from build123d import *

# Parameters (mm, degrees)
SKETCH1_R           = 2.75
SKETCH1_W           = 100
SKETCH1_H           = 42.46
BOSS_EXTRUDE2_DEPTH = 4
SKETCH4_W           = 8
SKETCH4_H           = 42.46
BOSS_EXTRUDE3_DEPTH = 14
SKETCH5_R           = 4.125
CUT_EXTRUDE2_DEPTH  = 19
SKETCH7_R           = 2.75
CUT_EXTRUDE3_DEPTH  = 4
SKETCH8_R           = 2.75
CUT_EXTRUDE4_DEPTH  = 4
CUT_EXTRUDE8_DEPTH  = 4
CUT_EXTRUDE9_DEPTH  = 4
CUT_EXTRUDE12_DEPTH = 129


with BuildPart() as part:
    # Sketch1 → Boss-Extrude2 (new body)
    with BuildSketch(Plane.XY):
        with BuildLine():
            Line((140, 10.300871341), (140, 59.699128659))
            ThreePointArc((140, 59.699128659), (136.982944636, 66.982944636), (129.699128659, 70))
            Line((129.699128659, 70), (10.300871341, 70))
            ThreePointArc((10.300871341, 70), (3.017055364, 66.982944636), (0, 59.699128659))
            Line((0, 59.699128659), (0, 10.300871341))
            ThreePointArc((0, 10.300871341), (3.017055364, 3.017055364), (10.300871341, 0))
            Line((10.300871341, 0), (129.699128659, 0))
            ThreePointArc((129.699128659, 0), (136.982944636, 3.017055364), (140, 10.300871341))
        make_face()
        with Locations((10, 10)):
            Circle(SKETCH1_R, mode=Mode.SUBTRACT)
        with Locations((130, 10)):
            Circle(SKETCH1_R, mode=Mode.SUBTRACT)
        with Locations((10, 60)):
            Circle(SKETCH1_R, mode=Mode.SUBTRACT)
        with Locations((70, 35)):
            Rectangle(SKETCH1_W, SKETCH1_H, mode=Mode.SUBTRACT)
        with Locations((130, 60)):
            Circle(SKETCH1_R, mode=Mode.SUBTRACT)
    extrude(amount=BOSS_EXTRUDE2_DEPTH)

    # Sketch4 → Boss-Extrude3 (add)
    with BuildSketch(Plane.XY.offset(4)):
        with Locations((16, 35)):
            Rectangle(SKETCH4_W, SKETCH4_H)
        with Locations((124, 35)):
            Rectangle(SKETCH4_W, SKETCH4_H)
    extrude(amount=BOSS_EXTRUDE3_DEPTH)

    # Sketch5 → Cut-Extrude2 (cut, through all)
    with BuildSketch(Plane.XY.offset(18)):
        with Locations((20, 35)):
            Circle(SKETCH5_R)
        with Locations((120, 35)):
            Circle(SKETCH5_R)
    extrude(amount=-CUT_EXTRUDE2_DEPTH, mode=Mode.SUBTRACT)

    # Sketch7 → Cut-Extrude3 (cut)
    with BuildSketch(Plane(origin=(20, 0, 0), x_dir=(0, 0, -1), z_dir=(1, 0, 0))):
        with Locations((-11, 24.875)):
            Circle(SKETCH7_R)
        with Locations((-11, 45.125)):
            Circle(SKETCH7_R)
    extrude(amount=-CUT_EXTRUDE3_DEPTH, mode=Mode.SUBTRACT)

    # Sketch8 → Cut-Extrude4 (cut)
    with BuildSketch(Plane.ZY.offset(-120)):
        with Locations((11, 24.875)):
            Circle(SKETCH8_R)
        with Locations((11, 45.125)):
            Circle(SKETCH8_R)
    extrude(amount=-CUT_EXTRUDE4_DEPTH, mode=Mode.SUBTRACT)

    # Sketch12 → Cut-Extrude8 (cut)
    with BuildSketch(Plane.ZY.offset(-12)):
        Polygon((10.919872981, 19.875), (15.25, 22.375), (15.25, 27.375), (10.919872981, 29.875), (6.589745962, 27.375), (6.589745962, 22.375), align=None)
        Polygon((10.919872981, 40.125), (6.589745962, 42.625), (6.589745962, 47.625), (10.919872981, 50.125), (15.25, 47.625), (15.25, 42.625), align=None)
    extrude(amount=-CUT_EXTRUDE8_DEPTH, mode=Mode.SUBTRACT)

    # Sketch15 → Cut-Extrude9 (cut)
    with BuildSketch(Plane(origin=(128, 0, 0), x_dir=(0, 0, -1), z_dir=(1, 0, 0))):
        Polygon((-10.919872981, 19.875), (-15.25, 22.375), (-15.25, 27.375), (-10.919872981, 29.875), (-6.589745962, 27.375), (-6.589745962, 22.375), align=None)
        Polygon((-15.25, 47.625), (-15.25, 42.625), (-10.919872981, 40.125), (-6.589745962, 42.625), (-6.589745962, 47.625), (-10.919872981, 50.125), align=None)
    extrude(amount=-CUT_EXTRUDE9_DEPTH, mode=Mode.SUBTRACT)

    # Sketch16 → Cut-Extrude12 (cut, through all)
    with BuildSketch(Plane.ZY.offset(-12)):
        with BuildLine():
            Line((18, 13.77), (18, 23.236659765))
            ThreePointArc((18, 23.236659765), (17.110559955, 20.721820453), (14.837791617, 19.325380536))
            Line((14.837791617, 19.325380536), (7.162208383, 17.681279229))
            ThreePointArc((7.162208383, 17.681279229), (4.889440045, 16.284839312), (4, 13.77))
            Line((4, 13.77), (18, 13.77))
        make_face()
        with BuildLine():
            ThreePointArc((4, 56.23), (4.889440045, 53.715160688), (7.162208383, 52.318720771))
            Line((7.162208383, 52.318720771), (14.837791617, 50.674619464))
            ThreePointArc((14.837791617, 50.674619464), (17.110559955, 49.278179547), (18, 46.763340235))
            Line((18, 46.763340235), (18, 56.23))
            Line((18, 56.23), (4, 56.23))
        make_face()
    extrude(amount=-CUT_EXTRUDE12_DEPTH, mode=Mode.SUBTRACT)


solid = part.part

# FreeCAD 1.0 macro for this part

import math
import FreeCAD as App
import Part
import Sketcher
Q = App.Units.Quantity

doc = App.newDocument("Part")
body = doc.addObject("PartDesign::Body", "Body")

# Sketch on XY plane
sketch1 = body.newObject("Sketcher::SketchObject", "Sketch")
sketch1.AttachmentSupport = (doc.getObject("XY_Plane"), [""])
sketch1.MapMode = "FlatFace"
sketch1.addGeometry([
    Part.LineSegment(App.Vector(140, 10.3, 0), App.Vector(140, 59.7, 0)),  # 0
    Part.ArcOfCircle(Part.Circle(App.Vector(129.7, 59.7, 0), App.Vector(0, 0, 1), 10.3), math.radians(0), math.radians(90)),  # 1
    Part.LineSegment(App.Vector(129.7, 70, 0), App.Vector(10.3, 70, 0)),  # 2
    Part.ArcOfCircle(Part.Circle(App.Vector(10.3, 59.7, 0), App.Vector(0, 0, 1), 10.3), math.radians(90), math.radians(180)),  # 3
    Part.LineSegment(App.Vector(0, 59.7, 0), App.Vector(0, 10.3, 0)),  # 4
    Part.ArcOfCircle(Part.Circle(App.Vector(10.3, 10.3, 0), App.Vector(0, 0, 1), 10.3), math.radians(-180), math.radians(-90)),  # 5
    Part.LineSegment(App.Vector(10.3, 0, 0), App.Vector(129.7, 0, 0)),  # 6
    Part.ArcOfCircle(Part.Circle(App.Vector(129.7, 10.3, 0), App.Vector(0, 0, 1), 10.3), math.radians(-90), math.radians(0)),  # 7
    Part.Circle(App.Vector(10, 10, 0), App.Vector(0, 0, 1), 2.8),  # 8
    Part.Circle(App.Vector(130, 10, 0), App.Vector(0, 0, 1), 2.8),  # 9
    Part.Circle(App.Vector(10, 60, 0), App.Vector(0, 0, 1), 2.8),  # 10
    Part.LineSegment(App.Vector(120, 13.8, 0), App.Vector(20, 13.8, 0)),  # 11
    Part.LineSegment(App.Vector(20, 13.8, 0), App.Vector(20, 56.2, 0)),  # 12
    Part.LineSegment(App.Vector(20, 56.2, 0), App.Vector(120, 56.2, 0)),  # 13
    Part.LineSegment(App.Vector(120, 56.2, 0), App.Vector(120, 13.8, 0)),  # 14
    Part.Circle(App.Vector(130, 60, 0), App.Vector(0, 0, 1), 2.8),  # 15
], False)
sketch1.addConstraint([
    Sketcher.Constraint("Tangent", 0, 2, 1, 1),
    Sketcher.Constraint("Tangent", 1, 2, 2, 1),
    Sketcher.Constraint("Tangent", 2, 2, 3, 1),
    Sketcher.Constraint("Tangent", 3, 2, 4, 1),
    Sketcher.Constraint("Tangent", 4, 2, 5, 1),
    Sketcher.Constraint("Tangent", 5, 2, 6, 1),
    Sketcher.Constraint("Tangent", 6, 2, 7, 1),
    Sketcher.Constraint("Tangent", 7, 2, 0, 1),
    Sketcher.Constraint("Coincident", 11, 2, 12, 1),
    Sketcher.Constraint("Coincident", 12, 2, 13, 1),
    Sketcher.Constraint("Coincident", 13, 2, 14, 1),
    Sketcher.Constraint("Coincident", 14, 2, 11, 1),
    Sketcher.Constraint("Vertical", 0),
    Sketcher.Constraint("Horizontal", 2),
    Sketcher.Constraint("Vertical", 4),
    Sketcher.Constraint("Horizontal", 6),
    Sketcher.Constraint("Horizontal", 11),
    Sketcher.Constraint("Vertical", 12),
    Sketcher.Constraint("Horizontal", 13),
    Sketcher.Constraint("Vertical", 14),
    Sketcher.Constraint("Equal", 1, 3),
    Sketcher.Constraint("Equal", 3, 5),
    Sketcher.Constraint("Equal", 5, 7),
    Sketcher.Constraint("Equal", 8, 9),
    Sketcher.Constraint("Equal", 9, 10),
    Sketcher.Constraint("Equal", 10, 15),
    Sketcher.Constraint("PointOnObject", 3, 2, -2),
    Sketcher.Constraint("PointOnObject", 5, 2, -1),
    Sketcher.Constraint("Horizontal", 8, 3, 9, 3),
    Sketcher.Constraint("Horizontal", 10, 3, 15, 3),
    Sketcher.Constraint("Vertical", 8, 3, 10, 3),
    Sketcher.Constraint("Vertical", 9, 3, 15, 3),
    Sketcher.Constraint("Diameter", 8, 5.5),
    Sketcher.Constraint("DistanceX", 11, 2, 11, 1, 100.0),
    Sketcher.Constraint("DistanceX", -1, 1, 8, 3, 10.0),
    Sketcher.Constraint("DistanceY", -1, 1, 8, 3, 10.0),
    Sketcher.Constraint("DistanceX", -1, 1, 9, 3, 130.0),
    Sketcher.Constraint("DistanceY", -1, 1, 10, 3, 60.0),
    Sketcher.Constraint("DistanceX", -1, 1, 0, 2, 140.0),
    Sketcher.Constraint("DistanceY", -1, 1, 1, 2, 70.0),
    Sketcher.Constraint("DistanceX", -1, 1, 11, 2, 20.0),
    Sketcher.Constraint("DistanceY", 12, 1, 12, 2, 42.46),
    Sketcher.Constraint("DistanceY", -1, 1, 11, 2, 13.77),
    Sketcher.Constraint("Radius", 1, 10.300871),
])
pad1 = body.newObject("PartDesign::Pad", "Pad")
pad1.Profile = sketch1
pad1.Length = 4

# Sketch on XY plane
sketch2 = body.newObject("Sketcher::SketchObject", "Sketch001")
sketch2.AttachmentSupport = (doc.getObject("XY_Plane"), [""])
sketch2.MapMode = "FlatFace"
sketch2.AttachmentOffset = App.Placement(App.Vector(0, 0, 4), App.Rotation())
sketch2.addGeometry([
    Part.LineSegment(App.Vector(12, 56, 0), App.Vector(12, 14, 0)),  # 0
    Part.LineSegment(App.Vector(12, 14, 0), App.Vector(20, 14, 0)),  # 1
    Part.LineSegment(App.Vector(20, 14, 0), App.Vector(20, 56, 0)),  # 2
    Part.LineSegment(App.Vector(20, 56, 0), App.Vector(12, 56, 0)),  # 3
    Part.LineSegment(App.Vector(120, 56, 0), App.Vector(120, 14, 0)),  # 4
    Part.LineSegment(App.Vector(120, 14, 0), App.Vector(128, 14, 0)),  # 5
    Part.LineSegment(App.Vector(128, 14, 0), App.Vector(128, 56, 0)),  # 6
    Part.LineSegment(App.Vector(128, 56, 0), App.Vector(120, 56, 0)),  # 7
], False)
sketch2.addConstraint([
    Sketcher.Constraint("Coincident", 0, 2, 1, 1),
    Sketcher.Constraint("Coincident", 1, 2, 2, 1),
    Sketcher.Constraint("Coincident", 2, 2, 3, 1),
    Sketcher.Constraint("Coincident", 3, 2, 0, 1),
    Sketcher.Constraint("Coincident", 4, 2, 5, 1),
    Sketcher.Constraint("Coincident", 5, 2, 6, 1),
    Sketcher.Constraint("Coincident", 6, 2, 7, 1),
    Sketcher.Constraint("Coincident", 7, 2, 4, 1),
    Sketcher.Constraint("Vertical", 0),
    Sketcher.Constraint("Horizontal", 1),
    Sketcher.Constraint("Vertical", 2),
    Sketcher.Constraint("Horizontal", 3),
    Sketcher.Constraint("Vertical", 4),
    Sketcher.Constraint("Horizontal", 5),
    Sketcher.Constraint("Vertical", 6),
    Sketcher.Constraint("Horizontal", 7),
    Sketcher.Constraint("Horizontal", 1, 2, 4, 2),
    Sketcher.Constraint("Horizontal", 3, 2, 6, 2),
    Sketcher.Constraint("Equal", 3, 5),
    Sketcher.Constraint("DistanceX", 1, 1, 1, 2, 8.0),
    Sketcher.Constraint("DistanceX", -1, 1, 0, 2, 12.0),
    Sketcher.Constraint("DistanceX", -1, 1, 4, 2, 120.0),
    Sketcher.Constraint("DistanceY", 0, 2, 0, 1, 42.46),
    Sketcher.Constraint("DistanceY", -1, 1, 0, 2, 13.77),
])
pad2 = body.newObject("PartDesign::Pad", "Pad001")
pad2.Profile = sketch2
pad2.Length = 14

# Sketch on XY plane
sketch3 = body.newObject("Sketcher::SketchObject", "Sketch002")
sketch3.AttachmentSupport = (doc.getObject("XY_Plane"), [""])
sketch3.MapMode = "FlatFace"
sketch3.AttachmentOffset = App.Placement(App.Vector(0, 0, 18), App.Rotation())
sketch3.addGeometry([
    Part.Circle(App.Vector(20, 35, 0), App.Vector(0, 0, 1), 4.1),
    Part.Circle(App.Vector(120, 35, 0), App.Vector(0, 0, 1), 4.1),
], False)
sketch3.addConstraint([
    Sketcher.Constraint("Equal", 0, 1),
    Sketcher.Constraint("Horizontal", 0, 3, 1, 3),
    Sketcher.Constraint("Diameter", 0, 8.25),
    Sketcher.Constraint("DistanceX", -1, 1, 0, 3, 20.0),
    Sketcher.Constraint("DistanceY", -1, 1, 0, 3, 35.0),
    Sketcher.Constraint("DistanceX", -1, 1, 1, 3, 120.0),
])
pocket1 = body.newObject("PartDesign::Pocket", "Pocket")
pocket1.Profile = sketch3
pocket1.Type = "ThroughAll"

# Sketch on YZ plane
sketch4 = body.newObject("Sketcher::SketchObject", "Sketch003")
sketch4.AttachmentSupport = (doc.getObject("YZ_Plane"), [""])
sketch4.MapMode = "FlatFace"
sketch4.AttachmentOffset = App.Placement(App.Vector(0, 0, 20), App.Rotation())
sketch4.addGeometry([
    Part.Circle(App.Vector(24.9, 11, 0), App.Vector(0, 0, 1), 2.8),
    Part.Circle(App.Vector(45.1, 11, 0), App.Vector(0, 0, 1), 2.8),
], False)
sketch4.addConstraint([
    Sketcher.Constraint("Equal", 0, 1),
    Sketcher.Constraint("Horizontal", 0, 3, 1, 3),
    Sketcher.Constraint("Diameter", 0, 5.5),
    Sketcher.Constraint("DistanceY", -1, 1, 0, 3, 11.0),
    Sketcher.Constraint("DistanceX", 0, 3, 1, 3, 20.25),
    Sketcher.Constraint("DistanceX", -1, 1, 0, 3, 24.875),
])
pocket2 = body.newObject("PartDesign::Pocket", "Pocket001")
pocket2.Profile = sketch4
pocket2.Length = 4

# Sketch on YZ plane
sketch5 = body.newObject("Sketcher::SketchObject", "Sketch004")
sketch5.AttachmentSupport = (doc.getObject("YZ_Plane"), [""])
sketch5.MapMode = "FlatFace"
sketch5.AttachmentOffset = App.Placement(App.Vector(0, 0, 120), App.Rotation())
sketch5.addGeometry([
    Part.Circle(App.Vector(24.9, 11, 0), App.Vector(0, 0, 1), 2.8),
    Part.Circle(App.Vector(45.1, 11, 0), App.Vector(0, 0, 1), 2.8),
], False)
sketch5.addConstraint([
    Sketcher.Constraint("Equal", 0, 1),
    Sketcher.Constraint("Horizontal", 0, 3, 1, 3),
    Sketcher.Constraint("Diameter", 0, 5.5),
    Sketcher.Constraint("DistanceY", -1, 1, 0, 3, 11.0),
    Sketcher.Constraint("DistanceX", 0, 3, 1, 3, 20.25),
    Sketcher.Constraint("DistanceX", -1, 1, 0, 3, 24.875),
])
pocket3 = body.newObject("PartDesign::Pocket", "Pocket002")
pocket3.Profile = sketch5
pocket3.Length = 4
pocket3.Reversed = True

# Sketch on YZ plane
sketch6 = body.newObject("Sketcher::SketchObject", "Sketch005")
sketch6.AttachmentSupport = (doc.getObject("YZ_Plane"), [""])
sketch6.MapMode = "FlatFace"
sketch6.AttachmentOffset = App.Placement(App.Vector(0, 0, 12), App.Rotation())
sketch6.addGeometry([
    Part.LineSegment(App.Vector(20, 11, 0), App.Vector(22, 15, 0)),  # 0
    Part.LineSegment(App.Vector(22, 15, 0), App.Vector(27, 15, 0)),  # 1
    Part.LineSegment(App.Vector(27, 15, 0), App.Vector(30, 11, 0)),  # 2
    Part.LineSegment(App.Vector(30, 11, 0), App.Vector(27, 7, 0)),  # 3
    Part.LineSegment(App.Vector(27, 7, 0), App.Vector(22, 7, 0)),  # 4
    Part.LineSegment(App.Vector(22, 7, 0), App.Vector(20, 11, 0)),  # 5
    Part.LineSegment(App.Vector(43, 7, 0), App.Vector(40, 11, 0)),  # 6
    Part.LineSegment(App.Vector(40, 11, 0), App.Vector(43, 15, 0)),  # 7
    Part.LineSegment(App.Vector(43, 15, 0), App.Vector(48, 15, 0)),  # 8
    Part.LineSegment(App.Vector(48, 15, 0), App.Vector(50, 11, 0)),  # 9
    Part.LineSegment(App.Vector(50, 11, 0), App.Vector(48, 7, 0)),  # 10
    Part.LineSegment(App.Vector(48, 7, 0), App.Vector(43, 7, 0)),  # 11
], False)
sketch6.addConstraint([
    Sketcher.Constraint("Coincident", 0, 2, 1, 1),
    Sketcher.Constraint("Coincident", 1, 2, 2, 1),
    Sketcher.Constraint("Coincident", 2, 2, 3, 1),
    Sketcher.Constraint("Coincident", 3, 2, 4, 1),
    Sketcher.Constraint("Coincident", 4, 2, 5, 1),
    Sketcher.Constraint("Coincident", 5, 2, 0, 1),
    Sketcher.Constraint("Coincident", 6, 2, 7, 1),
    Sketcher.Constraint("Coincident", 7, 2, 8, 1),
    Sketcher.Constraint("Coincident", 8, 2, 9, 1),
    Sketcher.Constraint("Coincident", 9, 2, 10, 1),
    Sketcher.Constraint("Coincident", 10, 2, 11, 1),
    Sketcher.Constraint("Coincident", 11, 2, 6, 1),
    Sketcher.Constraint("Horizontal", 1),
    Sketcher.Constraint("Horizontal", 4),
    Sketcher.Constraint("Horizontal", 8),
    Sketcher.Constraint("Horizontal", 11),
    Sketcher.Constraint("Parallel", 0, 3),
    Sketcher.Constraint("Parallel", 2, 5),
    Sketcher.Constraint("Parallel", 5, 6),
    Sketcher.Constraint("Parallel", 3, 7),
    Sketcher.Constraint("Parallel", 6, 9),
    Sketcher.Constraint("Parallel", 7, 10),
    Sketcher.Constraint("Horizontal", 2, 2, 5, 2),
    Sketcher.Constraint("Horizontal", 5, 2, 6, 2),
    Sketcher.Constraint("Horizontal", 1, 2, 7, 2),
    Sketcher.Constraint("Horizontal", 6, 2, 9, 2),
    Sketcher.Constraint("Horizontal", 4, 2, 10, 2),
    Sketcher.Constraint("Vertical", 1, 2, 3, 2),
    Sketcher.Constraint("Vertical", 0, 2, 4, 2),
    Sketcher.Constraint("Equal", 4, 8),
    Sketcher.Constraint("DistanceX", 1, 1, 1, 2, 5.0),
    Sketcher.Constraint("Angle", 0, Q("60 deg")),
    Sketcher.Constraint("Distance", 0, 5.0),
    Sketcher.Constraint("DistanceY", -1, 1, 0, 2, 15.25),
    Sketcher.Constraint("DistanceX", 2, 2, 6, 2, 10.25),
    Sketcher.Constraint("DistanceX", -1, 1, 0, 2, 22.375),
])
pocket4 = body.newObject("PartDesign::Pocket", "Pocket003")
pocket4.Profile = sketch6
pocket4.Length = 4
pocket4.Reversed = True

# Sketch on YZ plane
sketch7 = body.newObject("Sketcher::SketchObject", "Sketch006")
sketch7.AttachmentSupport = (doc.getObject("YZ_Plane"), [""])
sketch7.MapMode = "FlatFace"
sketch7.AttachmentOffset = App.Placement(App.Vector(0, 0, 128), App.Rotation())
sketch7.addGeometry([
    Part.LineSegment(App.Vector(22, 15, 0), App.Vector(20, 11, 0)),  # 0
    Part.LineSegment(App.Vector(20, 11, 0), App.Vector(22, 7, 0)),  # 1
    Part.LineSegment(App.Vector(22, 7, 0), App.Vector(27, 7, 0)),  # 2
    Part.LineSegment(App.Vector(27, 7, 0), App.Vector(30, 11, 0)),  # 3
    Part.LineSegment(App.Vector(30, 11, 0), App.Vector(27, 15, 0)),  # 4
    Part.LineSegment(App.Vector(27, 15, 0), App.Vector(22, 15, 0)),  # 5
    Part.LineSegment(App.Vector(48, 15, 0), App.Vector(43, 15, 0)),  # 6
    Part.LineSegment(App.Vector(43, 15, 0), App.Vector(40, 11, 0)),  # 7
    Part.LineSegment(App.Vector(40, 11, 0), App.Vector(43, 7, 0)),  # 8
    Part.LineSegment(App.Vector(43, 7, 0), App.Vector(48, 7, 0)),  # 9
    Part.LineSegment(App.Vector(48, 7, 0), App.Vector(50, 11, 0)),  # 10
    Part.LineSegment(App.Vector(50, 11, 0), App.Vector(48, 15, 0)),  # 11
], False)
sketch7.addConstraint([
    Sketcher.Constraint("Coincident", 0, 2, 1, 1),
    Sketcher.Constraint("Coincident", 1, 2, 2, 1),
    Sketcher.Constraint("Coincident", 2, 2, 3, 1),
    Sketcher.Constraint("Coincident", 3, 2, 4, 1),
    Sketcher.Constraint("Coincident", 4, 2, 5, 1),
    Sketcher.Constraint("Coincident", 5, 2, 0, 1),
    Sketcher.Constraint("Coincident", 6, 2, 7, 1),
    Sketcher.Constraint("Coincident", 7, 2, 8, 1),
    Sketcher.Constraint("Coincident", 8, 2, 9, 1),
    Sketcher.Constraint("Coincident", 9, 2, 10, 1),
    Sketcher.Constraint("Coincident", 10, 2, 11, 1),
    Sketcher.Constraint("Coincident", 11, 2, 6, 1),
    Sketcher.Constraint("Horizontal", 2),
    Sketcher.Constraint("Horizontal", 5),
    Sketcher.Constraint("Horizontal", 6),
    Sketcher.Constraint("Horizontal", 9),
    Sketcher.Constraint("Parallel", 0, 3),
    Sketcher.Constraint("Parallel", 1, 4),
    Sketcher.Constraint("Parallel", 3, 7),
    Sketcher.Constraint("Parallel", 4, 8),
    Sketcher.Constraint("Parallel", 7, 10),
    Sketcher.Constraint("Parallel", 8, 11),
    Sketcher.Constraint("Horizontal", 0, 2, 3, 2),
    Sketcher.Constraint("Horizontal", 5, 2, 6, 2),
    Sketcher.Constraint("Horizontal", 3, 2, 7, 2),
    Sketcher.Constraint("Horizontal", 2, 2, 8, 2),
    Sketcher.Constraint("Horizontal", 7, 2, 10, 2),
    Sketcher.Constraint("Vertical", 2, 2, 4, 2),
    Sketcher.Constraint("Vertical", 1, 2, 5, 2),
    Sketcher.Constraint("Equal", 5, 6),
    Sketcher.Constraint("DistanceX", 2, 1, 2, 2, 5.0),
    Sketcher.Constraint("Angle", 0, Q("-120 deg")),
    Sketcher.Constraint("Distance", 0, 5.0),
    Sketcher.Constraint("DistanceY", -1, 1, 4, 2, 15.25),
    Sketcher.Constraint("DistanceX", 3, 2, 6, 2, 12.75),
    Sketcher.Constraint("DistanceX", -1, 1, 0, 2, 19.875),
])
pocket5 = body.newObject("PartDesign::Pocket", "Pocket004")
pocket5.Profile = sketch7
pocket5.Length = 4

# Sketch on YZ plane
sketch8 = body.newObject("Sketcher::SketchObject", "Sketch007")
sketch8.AttachmentSupport = (doc.getObject("YZ_Plane"), [""])
sketch8.MapMode = "FlatFace"
sketch8.AttachmentOffset = App.Placement(App.Vector(0, 0, 12), App.Rotation())
sketch8.addGeometry([
    Part.LineSegment(App.Vector(13.8, 18, 0), App.Vector(23.2, 18, 0)),  # 0
    Part.ArcOfCircle(Part.Circle(App.Vector(23.2, 14, 0), App.Vector(0, 0, 1), 4), math.radians(90), math.radians(168)),  # 1
    Part.LineSegment(App.Vector(19.3, 14.8, 0), App.Vector(17.7, 7.2, 0)),  # 2
    Part.ArcOfCircle(Part.Circle(App.Vector(13.8, 8, 0), App.Vector(0, 0, 1), 4), math.radians(-90), math.radians(-12)),  # 3
    Part.LineSegment(App.Vector(13.8, 4, 0), App.Vector(13.8, 18, 0)),  # 4
    Part.ArcOfCircle(Part.Circle(App.Vector(56.2, 8, 0), App.Vector(0, 0, 1), 4), math.radians(-168), math.radians(-90)),  # 5
    Part.LineSegment(App.Vector(52.3, 7.2, 0), App.Vector(50.7, 14.8, 0)),  # 6
    Part.ArcOfCircle(Part.Circle(App.Vector(46.8, 14, 0), App.Vector(0, 0, 1), 4), math.radians(12), math.radians(90)),  # 7
    Part.LineSegment(App.Vector(46.8, 18, 0), App.Vector(56.2, 18, 0)),  # 8
    Part.LineSegment(App.Vector(56.2, 18, 0), App.Vector(56.2, 4, 0)),  # 9
], False)
sketch8.addConstraint([
    Sketcher.Constraint("Tangent", 0, 2, 1, 1),
    Sketcher.Constraint("Tangent", 1, 2, 2, 1),
    Sketcher.Constraint("Tangent", 2, 2, 3, 2),
    Sketcher.Constraint("Coincident", 3, 1, 4, 1),
    Sketcher.Constraint("Coincident", 4, 2, 0, 1),
    Sketcher.Constraint("Tangent", 5, 1, 6, 1),
    Sketcher.Constraint("Tangent", 6, 2, 7, 1),
    Sketcher.Constraint("Tangent", 7, 2, 8, 1),
    Sketcher.Constraint("Coincident", 8, 2, 9, 1),
    Sketcher.Constraint("Coincident", 9, 2, 5, 2),
    Sketcher.Constraint("Horizontal", 0),
    Sketcher.Constraint("Vertical", 4),
    Sketcher.Constraint("Horizontal", 8),
    Sketcher.Constraint("Vertical", 9),
    Sketcher.Constraint("Equal", 1, 3),
    Sketcher.Constraint("Equal", 3, 5),
    Sketcher.Constraint("Equal", 5, 7),
    Sketcher.Constraint("Horizontal", 3, 3, 5, 3),
    Sketcher.Constraint("Horizontal", 1, 3, 7, 3),
    Sketcher.Constraint("Horizontal", 2, 2, 5, 1),
    Sketcher.Constraint("Vertical", 5, 3, 8, 2),
    Sketcher.Constraint("Equal", 0, 8),
    Sketcher.Constraint("Radius", 1, 4.0),
    Sketcher.Constraint("DistanceY", 4, 1, 4, 2, 14.0),
    Sketcher.Constraint("DistanceY", -1, 1, 1, 3, 14.0),
    Sketcher.Constraint("Angle", 2, Q("-102.09 deg")),
    Sketcher.Constraint("DistanceX", -1, 1, 3, 3, 13.77),
    Sketcher.Constraint("DistanceX", -1, 1, 5, 3, 56.23),
])
pocket6 = body.newObject("PartDesign::Pocket", "Pocket005")
pocket6.Profile = sketch8
pocket6.Type = "ThroughAll"
pocket6.Reversed = True

doc.recompute()
